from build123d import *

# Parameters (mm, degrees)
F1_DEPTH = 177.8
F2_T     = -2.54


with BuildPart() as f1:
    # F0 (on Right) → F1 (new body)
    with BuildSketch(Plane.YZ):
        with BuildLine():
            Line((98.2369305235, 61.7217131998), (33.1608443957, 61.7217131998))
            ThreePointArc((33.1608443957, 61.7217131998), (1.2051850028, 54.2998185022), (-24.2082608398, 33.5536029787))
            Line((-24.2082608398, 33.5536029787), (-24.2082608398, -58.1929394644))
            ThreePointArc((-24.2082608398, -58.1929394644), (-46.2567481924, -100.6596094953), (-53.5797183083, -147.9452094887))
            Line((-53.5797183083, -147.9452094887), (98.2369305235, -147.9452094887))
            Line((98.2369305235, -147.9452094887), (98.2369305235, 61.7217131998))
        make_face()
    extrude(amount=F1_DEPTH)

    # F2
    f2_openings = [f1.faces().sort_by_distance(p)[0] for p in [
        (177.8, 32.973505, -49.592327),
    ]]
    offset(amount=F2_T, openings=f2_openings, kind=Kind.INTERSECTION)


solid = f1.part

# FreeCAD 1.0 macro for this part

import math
import FreeCAD as App
import Part
import Sketcher
from FreeCAD import Vector
Q = App.Units.Quantity


def faces_at(feature, points):
    """Names of the faces that lie closest to the given points."""
    faces = feature.Shape.Faces
    near = lambda p: min(range(len(faces)), key=lambda i: faces[i].distToShape(Part.Vertex(*p))[0])
    return sorted({f"Face{near(p) + 1}" for p in points})

doc = App.newDocument("Part")
params = doc.addObject("Spreadsheet::Sheet", "Params")
for row, (alias, value) in enumerate([
    ("pad1_length", "7 in"),
    ("thickness_wall", "0.1 in"),
], start=1):
    params.set(f"A{row}", alias)
    params.set(f"B{row}", "=" + value)
    params.setAlias(f"B{row}", alias)

body = doc.addObject("PartDesign::Body", "Body")

# Sketch on YZ plane
sketch1 = body.newObject("Sketcher::SketchObject", "Sketch")
sketch1.AttachmentSupport = (doc.getObject("YZ_Plane"), [""])
sketch1.MapMode = "FlatFace"
sketch1.addGeometry([
    Part.LineSegment(Vector(98.236931, 61.721713, 0), Vector(33.160844, 61.721713, 0)),  # 0
    Part.ArcOfCircle(Part.Circle(Vector(33.160844, -10.783269, 0), Vector(0, 0, 1), 72.504982), math.radians(90), math.radians(142.301883)),  # 1
    Part.LineSegment(Vector(-24.208261, 33.553603, 0), Vector(-24.208261, -58.192939, 0)),  # 2
    Part.ArcOfCircle(Part.Circle(Vector(94.185022, -146.619221, 0), Vector(0, 0, 1), 147.77069), math.radians(143.244462), math.radians(180.514138)),  # 3
    Part.LineSegment(Vector(-53.579718, -147.945209, 0), Vector(98.236931, -147.945209, 0)),  # 4
    Part.LineSegment(Vector(98.236931, -147.945209, 0), Vector(98.236931, 61.721713, 0)),  # 5
], False)
sketch1.addConstraint([
    Sketcher.Constraint("Coincident", 0, 2, 1, 1),
    Sketcher.Constraint("Coincident", 1, 2, 2, 1),
    Sketcher.Constraint("Coincident", 2, 2, 3, 1),
    Sketcher.Constraint("Coincident", 3, 2, 4, 1),
    Sketcher.Constraint("Coincident", 4, 2, 5, 1),
    Sketcher.Constraint("Coincident", 5, 2, 0, 1),
    Sketcher.Constraint("Horizontal", 0),
    Sketcher.Constraint("Vertical", 2),
    Sketcher.Constraint("Horizontal", 4),
    Sketcher.Constraint("Vertical", 5),
    Sketcher.Constraint("Radius", 3, Q("147.77069 mm")),
    Sketcher.Constraint("Radius", 1, Q("72.504982 mm")),
    Sketcher.Constraint("DistanceX", 4, 1, 4, 2, Q("151.816649 mm")),
    Sketcher.Constraint("DistanceX", 0, 2, 0, 1, Q("65.076086 mm")),
    Sketcher.Constraint("DistanceY", 2, 2, 2, 1, Q("91.746542 mm")),
    Sketcher.Constraint("DistanceY", 5, 1, 5, 2, Q("209.666923 mm")),
    Sketcher.Constraint("DistanceY", 1, 3, -1, 1, Q("10.783269 mm")),
    Sketcher.Constraint("DistanceY", 3, 3, -1, 1, Q("146.619221 mm")),
    Sketcher.Constraint("DistanceX", 1, 2, -1, 1, Q("24.208261 mm")),
    Sketcher.Constraint("DistanceY", 2, 2, -1, 1, Q("58.192939 mm")),
])
pad1 = body.newObject("PartDesign::Pad", "Pad")
pad1.Profile = sketch1
pad1.setExpression("Length", "Params.pad1_length")
doc.recompute()

thickness = body.newObject("PartDesign::Thickness", "Thickness")
thickness.Base = (pad1, faces_at(pad1, [(177.8, 22.326, -43.112)]))
thickness.setExpression("Value", "Params.thickness_wall")
thickness.Reversed = True
thickness.Join = "Intersection"

doc.recompute()
